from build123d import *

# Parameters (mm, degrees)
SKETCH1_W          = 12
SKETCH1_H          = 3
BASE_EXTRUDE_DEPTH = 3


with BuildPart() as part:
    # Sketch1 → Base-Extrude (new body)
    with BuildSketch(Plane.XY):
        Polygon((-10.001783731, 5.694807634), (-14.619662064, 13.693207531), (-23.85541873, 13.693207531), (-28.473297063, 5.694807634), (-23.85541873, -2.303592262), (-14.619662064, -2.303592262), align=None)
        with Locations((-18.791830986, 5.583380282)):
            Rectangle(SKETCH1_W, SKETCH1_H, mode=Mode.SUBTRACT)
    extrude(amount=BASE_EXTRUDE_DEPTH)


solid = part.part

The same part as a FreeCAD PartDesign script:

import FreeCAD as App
import Part
import Sketcher

V = App.Vector
Q = App.Units.Quantity


def add_polygon(sketch, points):
    """Adds a closed chain of lines whose ends are joined by coincident constraints."""
    first, n = sketch.GeometryCount, len(points)
    for a, b in zip(points, points[1:] + points[:1]):
        sketch.addGeometry(Part.LineSegment(App.Vector(*a, 0), App.Vector(*b, 0)), False)
    for i in range(n):
        sketch.addConstraint(Sketcher.Constraint("Coincident", first + i, 2, first + (i + 1) % n, 1))

doc = App.newDocument("Part")
body = doc.addObject("PartDesign::Body", "Body")

# Sketch on XY plane
sketch1 = doc.addObject("Sketcher::SketchObject", "Sketch")
body.addObject(sketch1)
sketch1.AttachmentSupport = (doc.XY_Plane, [""])
sketch1.MapMode = "FlatFace"
add_polygon(sketch1, [(-10.001784, 5.694808), (-14.619662, 13.693208), (-23.855419, 13.693208), (-28.473297, 5.694808), (-23.855419, -2.303592), (-14.619662, -2.303592)])  # lines 0-5
add_polygon(sketch1, [(-12.791831, 4.08338), (-24.791831, 4.08338), (-24.791831, 7.08338), (-12.791831, 7.08338)])  # lines 6-9
sketch1.addConstraint(Sketcher.Constraint("Horizontal", 1))
sketch1.addConstraint(Sketcher.Constraint("Horizontal", 4))
sketch1.addConstraint(Sketcher.Constraint("Horizontal", 6))
sketch1.addConstraint(Sketcher.Constraint("Vertical", 7))
sketch1.addConstraint(Sketcher.Constraint("Horizontal", 8))
sketch1.addConstraint(Sketcher.Constraint("Vertical", 9))
sketch1.addConstraint(Sketcher.Constraint("Parallel", 0, 3))
sketch1.addConstraint(Sketcher.Constraint("Parallel", 2, 5))
sketch1.addConstraint(Sketcher.Constraint("Horizontal", 2, 2, 5, 2))
sketch1.addConstraint(Sketcher.Constraint("Vertical", 1, 2, 3, 2))
sketch1.addConstraint(Sketcher.Constraint("Vertical", 0, 2, 4, 2))
sketch1.addConstraint(Sketcher.Constraint("DistanceX", 6, 2, 6, 1, Q("12 mm")))
sketch1.addConstraint(Sketcher.Constraint("DistanceY", 7, 1, 7, 2, Q("3 mm")))
sketch1.addConstraint(Sketcher.Constraint("Angle", 0, Q("120 deg")))
sketch1.addConstraint(Sketcher.Constraint("DistanceY", 2, 2, 1, 2, Q("7.9984 mm")))
sketch1.addConstraint(Sketcher.Constraint("DistanceX", 1, 2, 1, 1, Q("9.235757 mm")))
sketch1.addConstraint(Sketcher.Constraint("DistanceX", 1, 2, -1, 1, Q("23.855419 mm")))
sketch1.addConstraint(Sketcher.Constraint("DistanceX", 6, 2, -1, 1, Q("24.791831 mm")))
sketch1.addConstraint(Sketcher.Constraint("DistanceY", -1, 1, 6, 2, Q("4.08338 mm")))
sketch1.addConstraint(Sketcher.Constraint("DistanceY", -1, 1, 0, 2, Q("13.693208 mm")))
pad1 = doc.addObject("PartDesign::Pad", "Pad")
body.addObject(pad1)
pad1.Profile = sketch1
pad1.Length = 3

doc.recompute()
